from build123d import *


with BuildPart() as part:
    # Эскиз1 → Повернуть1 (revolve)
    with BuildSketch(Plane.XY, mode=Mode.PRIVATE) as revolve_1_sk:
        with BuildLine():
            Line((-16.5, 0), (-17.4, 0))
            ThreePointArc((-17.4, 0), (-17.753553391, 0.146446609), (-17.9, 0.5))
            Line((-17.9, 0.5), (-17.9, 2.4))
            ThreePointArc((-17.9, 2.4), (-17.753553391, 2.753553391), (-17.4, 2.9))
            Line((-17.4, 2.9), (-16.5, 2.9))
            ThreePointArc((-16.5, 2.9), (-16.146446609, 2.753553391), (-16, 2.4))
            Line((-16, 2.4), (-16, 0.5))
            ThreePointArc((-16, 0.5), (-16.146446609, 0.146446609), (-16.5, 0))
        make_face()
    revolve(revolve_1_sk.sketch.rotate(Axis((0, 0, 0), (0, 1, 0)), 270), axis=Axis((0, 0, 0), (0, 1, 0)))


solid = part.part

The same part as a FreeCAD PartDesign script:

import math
import FreeCAD as App
import Part
import Sketcher

V = App.Vector
Q = App.Units.Quantity

doc = App.newDocument("Part")
body = doc.addObject("PartDesign::Body", "Body")

# Sketch on XY plane
sketch1 = body.newObject("Sketcher::SketchObject", "Sketch")
sketch1.AttachmentSupport = (doc.getObject("XY_Plane"), [""])
sketch1.MapMode = "FlatFace"
sketch1.addGeometry([
    Part.LineSegment(V(-17.4, 0, 0), V(-16.5, 0, 0)),  # 0
    Part.ArcOfCircle(Part.Circle(V(-16.5, 0.5, 0), V(0, 0, 1), 0.5), math.radians(-90), math.radians(0)),  # 1
    Part.LineSegment(V(-16, 0.5, 0), V(-16, 2.4, 0)),  # 2
    Part.ArcOfCircle(Part.Circle(V(-16.5, 2.4, 0), V(0, 0, 1), 0.5), math.radians(0), math.radians(90)),  # 3
    Part.LineSegment(V(-16.5, 2.9, 0), V(-17.4, 2.9, 0)),  # 4
    Part.ArcOfCircle(Part.Circle(V(-17.4, 2.4, 0), V(0, 0, 1), 0.5), math.radians(90), math.radians(180)),  # 5
    Part.LineSegment(V(-17.9, 2.4, 0), V(-17.9, 0.5, 0)),  # 6
    Part.ArcOfCircle(Part.Circle(V(-17.4, 0.5, 0), V(0, 0, 1), 0.5), math.radians(180), math.radians(270)),  # 7
], False)
sketch1.addConstraint([
    Sketcher.Constraint("Tangent", 0, 2, 1, 1),
    Sketcher.Constraint("Tangent", 1, 2, 2, 1),
    Sketcher.Constraint("Tangent", 2, 2, 3, 1),
    Sketcher.Constraint("Tangent", 3, 2, 4, 1),
    Sketcher.Constraint("Tangent", 4, 2, 5, 1),
    Sketcher.Constraint("Tangent", 5, 2, 6, 1),
    Sketcher.Constraint("Tangent", 6, 2, 7, 1),
    Sketcher.Constraint("Tangent", 7, 2, 0, 1),
    Sketcher.Constraint("Horizontal", 0),
    Sketcher.Constraint("Vertical", 2),
    Sketcher.Constraint("Horizontal", 4),
    Sketcher.Constraint("Vertical", 6),
    Sketcher.Constraint("Equal", 1, 3),
    Sketcher.Constraint("Equal", 3, 5),
    Sketcher.Constraint("Equal", 5, 7),
    Sketcher.Constraint("PointOnObject", 0, 2, -1),
    Sketcher.Constraint("Radius", 1, Q("0.5 mm")),
    Sketcher.Constraint("DistanceX", 0, 1, 0, 2, Q("0.9 mm")),
    Sketcher.Constraint("DistanceY", 2, 1, 2, 2, Q("1.9 mm")),
    Sketcher.Constraint("DistanceX", 1, 2, -1, 1, Q("16 mm")),
])
revolution = body.newObject("PartDesign::Revolution", "Revolution")
revolution.Profile = sketch1
revolution.ReferenceAxis = (sketch1, ["V_Axis"])
revolution.Angle = 360

doc.recompute()
